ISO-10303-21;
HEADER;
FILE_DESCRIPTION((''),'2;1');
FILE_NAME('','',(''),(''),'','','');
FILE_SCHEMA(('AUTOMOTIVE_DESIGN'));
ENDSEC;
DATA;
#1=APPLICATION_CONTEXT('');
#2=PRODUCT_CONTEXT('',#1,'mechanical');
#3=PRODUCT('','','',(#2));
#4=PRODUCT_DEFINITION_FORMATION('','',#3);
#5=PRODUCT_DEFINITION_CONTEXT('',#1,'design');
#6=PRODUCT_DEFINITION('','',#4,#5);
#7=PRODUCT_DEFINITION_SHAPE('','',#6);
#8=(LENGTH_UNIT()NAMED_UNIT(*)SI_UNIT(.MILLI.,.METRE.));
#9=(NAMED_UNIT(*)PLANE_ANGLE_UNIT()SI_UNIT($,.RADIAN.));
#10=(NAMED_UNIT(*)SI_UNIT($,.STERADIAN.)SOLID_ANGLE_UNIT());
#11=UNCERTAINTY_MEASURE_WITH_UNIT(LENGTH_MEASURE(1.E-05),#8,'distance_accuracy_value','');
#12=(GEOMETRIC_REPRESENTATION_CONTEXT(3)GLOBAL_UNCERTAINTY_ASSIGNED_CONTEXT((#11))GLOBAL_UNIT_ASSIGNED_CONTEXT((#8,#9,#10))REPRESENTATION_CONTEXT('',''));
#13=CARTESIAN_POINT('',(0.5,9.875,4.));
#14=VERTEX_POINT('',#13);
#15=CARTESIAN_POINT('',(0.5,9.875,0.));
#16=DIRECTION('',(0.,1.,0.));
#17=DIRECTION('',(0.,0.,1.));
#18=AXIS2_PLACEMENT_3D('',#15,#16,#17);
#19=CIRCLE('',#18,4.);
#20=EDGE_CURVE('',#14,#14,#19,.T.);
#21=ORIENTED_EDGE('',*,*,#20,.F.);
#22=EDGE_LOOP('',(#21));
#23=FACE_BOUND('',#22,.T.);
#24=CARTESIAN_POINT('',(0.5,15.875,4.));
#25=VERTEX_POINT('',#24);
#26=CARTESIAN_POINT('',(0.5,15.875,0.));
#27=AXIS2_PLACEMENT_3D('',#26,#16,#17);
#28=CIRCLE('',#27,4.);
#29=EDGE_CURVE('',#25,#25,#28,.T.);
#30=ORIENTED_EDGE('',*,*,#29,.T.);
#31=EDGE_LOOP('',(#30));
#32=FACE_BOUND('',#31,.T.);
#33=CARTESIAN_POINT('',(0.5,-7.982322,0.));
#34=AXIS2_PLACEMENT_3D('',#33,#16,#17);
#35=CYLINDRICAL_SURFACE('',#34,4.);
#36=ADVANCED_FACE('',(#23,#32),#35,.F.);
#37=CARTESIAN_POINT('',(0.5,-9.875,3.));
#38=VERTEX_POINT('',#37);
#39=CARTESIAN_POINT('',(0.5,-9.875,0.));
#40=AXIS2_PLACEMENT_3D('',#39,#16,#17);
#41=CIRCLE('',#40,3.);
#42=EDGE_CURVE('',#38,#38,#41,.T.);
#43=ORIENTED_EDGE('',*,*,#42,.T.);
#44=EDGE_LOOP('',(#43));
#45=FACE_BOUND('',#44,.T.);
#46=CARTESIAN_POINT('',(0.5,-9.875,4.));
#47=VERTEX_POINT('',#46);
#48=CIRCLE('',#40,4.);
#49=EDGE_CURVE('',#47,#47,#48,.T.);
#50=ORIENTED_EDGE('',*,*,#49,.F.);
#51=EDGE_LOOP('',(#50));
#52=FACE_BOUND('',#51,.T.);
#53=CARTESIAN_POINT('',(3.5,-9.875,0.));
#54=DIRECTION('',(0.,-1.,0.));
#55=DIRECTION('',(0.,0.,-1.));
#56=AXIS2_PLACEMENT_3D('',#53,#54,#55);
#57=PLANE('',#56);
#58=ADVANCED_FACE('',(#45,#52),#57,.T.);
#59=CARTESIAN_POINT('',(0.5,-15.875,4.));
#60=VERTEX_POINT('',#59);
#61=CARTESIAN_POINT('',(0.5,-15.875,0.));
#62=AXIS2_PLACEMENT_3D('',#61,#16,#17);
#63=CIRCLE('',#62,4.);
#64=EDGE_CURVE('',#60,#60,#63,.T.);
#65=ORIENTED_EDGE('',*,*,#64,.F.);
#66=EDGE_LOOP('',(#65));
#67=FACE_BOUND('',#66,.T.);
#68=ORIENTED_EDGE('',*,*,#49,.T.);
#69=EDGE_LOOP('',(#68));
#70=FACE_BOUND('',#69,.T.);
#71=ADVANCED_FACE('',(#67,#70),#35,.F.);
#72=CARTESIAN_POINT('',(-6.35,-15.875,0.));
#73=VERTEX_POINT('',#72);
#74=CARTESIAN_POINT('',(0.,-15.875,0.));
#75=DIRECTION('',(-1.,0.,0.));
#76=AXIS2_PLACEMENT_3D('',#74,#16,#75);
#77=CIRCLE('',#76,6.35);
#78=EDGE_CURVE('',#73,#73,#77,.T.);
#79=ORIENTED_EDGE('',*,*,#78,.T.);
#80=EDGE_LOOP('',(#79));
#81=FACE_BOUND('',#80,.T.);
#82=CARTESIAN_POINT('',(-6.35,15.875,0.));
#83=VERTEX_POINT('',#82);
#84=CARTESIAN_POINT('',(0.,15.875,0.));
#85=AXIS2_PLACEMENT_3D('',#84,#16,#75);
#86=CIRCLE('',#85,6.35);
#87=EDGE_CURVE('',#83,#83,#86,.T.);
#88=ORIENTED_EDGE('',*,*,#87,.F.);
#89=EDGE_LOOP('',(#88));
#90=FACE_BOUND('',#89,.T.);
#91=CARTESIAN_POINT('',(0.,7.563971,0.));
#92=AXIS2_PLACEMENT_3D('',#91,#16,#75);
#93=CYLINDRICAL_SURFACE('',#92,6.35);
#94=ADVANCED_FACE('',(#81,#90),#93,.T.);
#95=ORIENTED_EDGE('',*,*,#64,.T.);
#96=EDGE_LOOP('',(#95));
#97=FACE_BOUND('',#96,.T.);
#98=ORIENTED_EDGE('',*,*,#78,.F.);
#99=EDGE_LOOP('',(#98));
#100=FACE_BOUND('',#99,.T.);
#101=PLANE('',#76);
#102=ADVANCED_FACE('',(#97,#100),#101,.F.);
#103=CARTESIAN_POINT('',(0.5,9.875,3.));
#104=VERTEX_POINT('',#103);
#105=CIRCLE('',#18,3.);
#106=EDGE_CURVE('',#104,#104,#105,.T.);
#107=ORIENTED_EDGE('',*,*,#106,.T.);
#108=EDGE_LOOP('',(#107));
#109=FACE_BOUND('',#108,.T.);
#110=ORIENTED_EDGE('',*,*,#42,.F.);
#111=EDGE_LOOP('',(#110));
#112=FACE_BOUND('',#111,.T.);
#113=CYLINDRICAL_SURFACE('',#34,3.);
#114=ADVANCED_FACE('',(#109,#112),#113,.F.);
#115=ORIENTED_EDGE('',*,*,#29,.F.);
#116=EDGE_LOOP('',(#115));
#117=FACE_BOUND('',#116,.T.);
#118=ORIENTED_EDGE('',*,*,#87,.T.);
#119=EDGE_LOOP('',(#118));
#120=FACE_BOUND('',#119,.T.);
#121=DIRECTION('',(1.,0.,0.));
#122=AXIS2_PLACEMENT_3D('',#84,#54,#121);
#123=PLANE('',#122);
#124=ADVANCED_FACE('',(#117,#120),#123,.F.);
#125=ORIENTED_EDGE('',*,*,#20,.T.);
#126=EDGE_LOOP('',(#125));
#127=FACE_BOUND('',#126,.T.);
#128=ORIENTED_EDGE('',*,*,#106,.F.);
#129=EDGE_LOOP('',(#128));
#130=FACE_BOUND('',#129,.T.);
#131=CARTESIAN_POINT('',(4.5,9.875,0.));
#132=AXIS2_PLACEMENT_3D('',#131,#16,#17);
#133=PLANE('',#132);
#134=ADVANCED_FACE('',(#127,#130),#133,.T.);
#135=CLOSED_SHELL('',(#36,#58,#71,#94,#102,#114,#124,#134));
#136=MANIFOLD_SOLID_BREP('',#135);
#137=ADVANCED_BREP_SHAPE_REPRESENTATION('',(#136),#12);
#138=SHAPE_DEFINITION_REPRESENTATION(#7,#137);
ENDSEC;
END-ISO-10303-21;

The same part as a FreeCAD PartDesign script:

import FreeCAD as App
import Part
import Sketcher
from FreeCAD import Vector
Q = App.Units.Quantity

doc = App.newDocument("Part")
params = doc.addObject("Spreadsheet::Sheet", "Params")
for row, (alias, value) in enumerate([
    ("sketch1_width", "6.35 mm"),
    ("sketch1_height", "31.75 mm"),
    ("revolution_angle", "360 deg"),
    ("sketch2_width", "4 mm"),
    ("sketch2_width2", "1 mm"),
    ("sketch2_height", "6 mm"),
    ("sketch2_height2", "31.75 mm"),
    ("groove_angle", "360 deg"),
], start=1):
    params.set(f"A{row}", alias)
    params.set(f"B{row}", "=" + value)
    params.setAlias(f"B{row}", alias)

body = doc.addObject("PartDesign::Body", "Body")

# Sketch on XY plane
sketch1 = body.newObject("Sketcher::SketchObject", "Sketch")
sketch1.AttachmentSupport = (doc.getObject("XY_Plane"), [""])
sketch1.MapMode = "FlatFace"
sketch1.addGeometry([
    Part.LineSegment(Vector(0, 16, 0), Vector(0, -16, 0)),
    Part.LineSegment(Vector(0, -16, 0), Vector(6, -16, 0)),
    Part.LineSegment(Vector(6, -16, 0), Vector(6, 16, 0)),
    Part.LineSegment(Vector(6, 16, 0), Vector(0, 16, 0)),
], False)
sketch1.addConstraint([
    Sketcher.Constraint("Coincident", 0, 2, 1, 1),
    Sketcher.Constraint("Coincident", 1, 2, 2, 1),
    Sketcher.Constraint("Coincident", 2, 2, 3, 1),
    Sketcher.Constraint("Coincident", 3, 2, 0, 1),
    Sketcher.Constraint("Vertical", 0),
    Sketcher.Constraint("Horizontal", 1),
    Sketcher.Constraint("Vertical", 2),
    Sketcher.Constraint("Horizontal", 3),
    Sketcher.Constraint("Symmetric", 0, 2, 3, 2, -1, 1),
    Sketcher.Constraint("DistanceX", 1, 1, 1, 2, Q("6.35 mm")),
    Sketcher.Constraint("DistanceY", 0, 2, 0, 1, Q("31.75 mm")),
])
sketch1.setExpression("Constraints[9]", "Params.sketch1_width")
sketch1.setExpression("Constraints[10]", "Params.sketch1_height")
revolution = body.newObject("PartDesign::Revolution", "Revolution")
revolution.Profile = sketch1
revolution.ReferenceAxis = (sketch1, ["V_Axis"])
revolution.setExpression("Angle", "Params.revolution_angle")

# Sketch on XY plane
sketch2 = body.newObject("Sketcher::SketchObject", "Sketch001")
sketch2.AttachmentSupport = (doc.getObject("XY_Plane"), [""])
sketch2.MapMode = "FlatFace"
sketch2.addGeometry([
    Part.LineSegment(Vector(4.5, 9.9, 0), Vector(4.5, 15.9, 0)),  # 0
    Part.LineSegment(Vector(4.5, 15.9, 0), Vector(0.5, 15.9, 0)),  # 1
    Part.LineSegment(Vector(0.5, 15.9, 0), Vector(0.5, -15.9, 0)),  # 2
    Part.LineSegment(Vector(0.5, -15.9, 0), Vector(4.5, -15.9, 0)),  # 3
    Part.LineSegment(Vector(4.5, -15.9, 0), Vector(4.5, -9.9, 0)),  # 4
    Part.LineSegment(Vector(4.5, -9.9, 0), Vector(3.5, -9.9, 0)),  # 5
    Part.LineSegment(Vector(3.5, -9.9, 0), Vector(3.5, 9.9, 0)),  # 6
    Part.LineSegment(Vector(3.5, 9.9, 0), Vector(4.5, 9.9, 0)),  # 7
], False)
sketch2.addGeometry(Part.LineSegment(Vector(0.5, 15.9, 0), Vector(0.5, -15.9, 0)), True)  # axis
sketch2.addConstraint([
    Sketcher.Constraint("Coincident", 0, 2, 1, 1),
    Sketcher.Constraint("Coincident", 1, 2, 2, 1),
    Sketcher.Constraint("Coincident", 2, 2, 3, 1),
    Sketcher.Constraint("Coincident", 3, 2, 4, 1),
    Sketcher.Constraint("Coincident", 4, 2, 5, 1),
    Sketcher.Constraint("Coincident", 5, 2, 6, 1),
    Sketcher.Constraint("Coincident", 6, 2, 7, 1),
    Sketcher.Constraint("Coincident", 7, 2, 0, 1),
    Sketcher.Constraint("Vertical", 0),
    Sketcher.Constraint("Horizontal", 1),
    Sketcher.Constraint("Vertical", 2),
    Sketcher.Constraint("Horizontal", 3),
    Sketcher.Constraint("Vertical", 4),
    Sketcher.Constraint("Horizontal", 5),
    Sketcher.Constraint("Vertical", 6),
    Sketcher.Constraint("Horizontal", 7),
    Sketcher.Constraint("Vertical", 8),
    Sketcher.Constraint("Coincident", 8, 1, 1, 2),
    Sketcher.Constraint("Symmetric", 0, 2, 3, 2, -1),
    Sketcher.Constraint("Horizontal", 3, 2, 8, 2),
    Sketcher.Constraint("Equal", 0, 4),
    Sketcher.Constraint("DistanceX", 1, 2, 1, 1, Q("4 mm")),
    Sketcher.Constraint("DistanceX", 5, 2, 5, 1, Q("1 mm")),
    Sketcher.Constraint("DistanceY", 0, 1, 0, 2, Q("6 mm")),
    Sketcher.Constraint("DistanceY", 2, 2, 2, 1, Q("31.75 mm")),
    Sketcher.Constraint("DistanceX", -1, 1, 0, 2, Q("4.5 mm")),
])
sketch2.setExpression("Constraints[21]", "Params.sketch2_width")
sketch2.setExpression("Constraints[22]", "Params.sketch2_width2")
sketch2.setExpression("Constraints[23]", "Params.sketch2_height")
sketch2.setExpression("Constraints[24]", "Params.sketch2_height2")
groove = body.newObject("PartDesign::Groove", "Groove")
groove.Profile = sketch2
groove.ReferenceAxis = (sketch2, ["Axis0"])
groove.setExpression("Angle", "Params.groove_angle")

doc.recompute()
